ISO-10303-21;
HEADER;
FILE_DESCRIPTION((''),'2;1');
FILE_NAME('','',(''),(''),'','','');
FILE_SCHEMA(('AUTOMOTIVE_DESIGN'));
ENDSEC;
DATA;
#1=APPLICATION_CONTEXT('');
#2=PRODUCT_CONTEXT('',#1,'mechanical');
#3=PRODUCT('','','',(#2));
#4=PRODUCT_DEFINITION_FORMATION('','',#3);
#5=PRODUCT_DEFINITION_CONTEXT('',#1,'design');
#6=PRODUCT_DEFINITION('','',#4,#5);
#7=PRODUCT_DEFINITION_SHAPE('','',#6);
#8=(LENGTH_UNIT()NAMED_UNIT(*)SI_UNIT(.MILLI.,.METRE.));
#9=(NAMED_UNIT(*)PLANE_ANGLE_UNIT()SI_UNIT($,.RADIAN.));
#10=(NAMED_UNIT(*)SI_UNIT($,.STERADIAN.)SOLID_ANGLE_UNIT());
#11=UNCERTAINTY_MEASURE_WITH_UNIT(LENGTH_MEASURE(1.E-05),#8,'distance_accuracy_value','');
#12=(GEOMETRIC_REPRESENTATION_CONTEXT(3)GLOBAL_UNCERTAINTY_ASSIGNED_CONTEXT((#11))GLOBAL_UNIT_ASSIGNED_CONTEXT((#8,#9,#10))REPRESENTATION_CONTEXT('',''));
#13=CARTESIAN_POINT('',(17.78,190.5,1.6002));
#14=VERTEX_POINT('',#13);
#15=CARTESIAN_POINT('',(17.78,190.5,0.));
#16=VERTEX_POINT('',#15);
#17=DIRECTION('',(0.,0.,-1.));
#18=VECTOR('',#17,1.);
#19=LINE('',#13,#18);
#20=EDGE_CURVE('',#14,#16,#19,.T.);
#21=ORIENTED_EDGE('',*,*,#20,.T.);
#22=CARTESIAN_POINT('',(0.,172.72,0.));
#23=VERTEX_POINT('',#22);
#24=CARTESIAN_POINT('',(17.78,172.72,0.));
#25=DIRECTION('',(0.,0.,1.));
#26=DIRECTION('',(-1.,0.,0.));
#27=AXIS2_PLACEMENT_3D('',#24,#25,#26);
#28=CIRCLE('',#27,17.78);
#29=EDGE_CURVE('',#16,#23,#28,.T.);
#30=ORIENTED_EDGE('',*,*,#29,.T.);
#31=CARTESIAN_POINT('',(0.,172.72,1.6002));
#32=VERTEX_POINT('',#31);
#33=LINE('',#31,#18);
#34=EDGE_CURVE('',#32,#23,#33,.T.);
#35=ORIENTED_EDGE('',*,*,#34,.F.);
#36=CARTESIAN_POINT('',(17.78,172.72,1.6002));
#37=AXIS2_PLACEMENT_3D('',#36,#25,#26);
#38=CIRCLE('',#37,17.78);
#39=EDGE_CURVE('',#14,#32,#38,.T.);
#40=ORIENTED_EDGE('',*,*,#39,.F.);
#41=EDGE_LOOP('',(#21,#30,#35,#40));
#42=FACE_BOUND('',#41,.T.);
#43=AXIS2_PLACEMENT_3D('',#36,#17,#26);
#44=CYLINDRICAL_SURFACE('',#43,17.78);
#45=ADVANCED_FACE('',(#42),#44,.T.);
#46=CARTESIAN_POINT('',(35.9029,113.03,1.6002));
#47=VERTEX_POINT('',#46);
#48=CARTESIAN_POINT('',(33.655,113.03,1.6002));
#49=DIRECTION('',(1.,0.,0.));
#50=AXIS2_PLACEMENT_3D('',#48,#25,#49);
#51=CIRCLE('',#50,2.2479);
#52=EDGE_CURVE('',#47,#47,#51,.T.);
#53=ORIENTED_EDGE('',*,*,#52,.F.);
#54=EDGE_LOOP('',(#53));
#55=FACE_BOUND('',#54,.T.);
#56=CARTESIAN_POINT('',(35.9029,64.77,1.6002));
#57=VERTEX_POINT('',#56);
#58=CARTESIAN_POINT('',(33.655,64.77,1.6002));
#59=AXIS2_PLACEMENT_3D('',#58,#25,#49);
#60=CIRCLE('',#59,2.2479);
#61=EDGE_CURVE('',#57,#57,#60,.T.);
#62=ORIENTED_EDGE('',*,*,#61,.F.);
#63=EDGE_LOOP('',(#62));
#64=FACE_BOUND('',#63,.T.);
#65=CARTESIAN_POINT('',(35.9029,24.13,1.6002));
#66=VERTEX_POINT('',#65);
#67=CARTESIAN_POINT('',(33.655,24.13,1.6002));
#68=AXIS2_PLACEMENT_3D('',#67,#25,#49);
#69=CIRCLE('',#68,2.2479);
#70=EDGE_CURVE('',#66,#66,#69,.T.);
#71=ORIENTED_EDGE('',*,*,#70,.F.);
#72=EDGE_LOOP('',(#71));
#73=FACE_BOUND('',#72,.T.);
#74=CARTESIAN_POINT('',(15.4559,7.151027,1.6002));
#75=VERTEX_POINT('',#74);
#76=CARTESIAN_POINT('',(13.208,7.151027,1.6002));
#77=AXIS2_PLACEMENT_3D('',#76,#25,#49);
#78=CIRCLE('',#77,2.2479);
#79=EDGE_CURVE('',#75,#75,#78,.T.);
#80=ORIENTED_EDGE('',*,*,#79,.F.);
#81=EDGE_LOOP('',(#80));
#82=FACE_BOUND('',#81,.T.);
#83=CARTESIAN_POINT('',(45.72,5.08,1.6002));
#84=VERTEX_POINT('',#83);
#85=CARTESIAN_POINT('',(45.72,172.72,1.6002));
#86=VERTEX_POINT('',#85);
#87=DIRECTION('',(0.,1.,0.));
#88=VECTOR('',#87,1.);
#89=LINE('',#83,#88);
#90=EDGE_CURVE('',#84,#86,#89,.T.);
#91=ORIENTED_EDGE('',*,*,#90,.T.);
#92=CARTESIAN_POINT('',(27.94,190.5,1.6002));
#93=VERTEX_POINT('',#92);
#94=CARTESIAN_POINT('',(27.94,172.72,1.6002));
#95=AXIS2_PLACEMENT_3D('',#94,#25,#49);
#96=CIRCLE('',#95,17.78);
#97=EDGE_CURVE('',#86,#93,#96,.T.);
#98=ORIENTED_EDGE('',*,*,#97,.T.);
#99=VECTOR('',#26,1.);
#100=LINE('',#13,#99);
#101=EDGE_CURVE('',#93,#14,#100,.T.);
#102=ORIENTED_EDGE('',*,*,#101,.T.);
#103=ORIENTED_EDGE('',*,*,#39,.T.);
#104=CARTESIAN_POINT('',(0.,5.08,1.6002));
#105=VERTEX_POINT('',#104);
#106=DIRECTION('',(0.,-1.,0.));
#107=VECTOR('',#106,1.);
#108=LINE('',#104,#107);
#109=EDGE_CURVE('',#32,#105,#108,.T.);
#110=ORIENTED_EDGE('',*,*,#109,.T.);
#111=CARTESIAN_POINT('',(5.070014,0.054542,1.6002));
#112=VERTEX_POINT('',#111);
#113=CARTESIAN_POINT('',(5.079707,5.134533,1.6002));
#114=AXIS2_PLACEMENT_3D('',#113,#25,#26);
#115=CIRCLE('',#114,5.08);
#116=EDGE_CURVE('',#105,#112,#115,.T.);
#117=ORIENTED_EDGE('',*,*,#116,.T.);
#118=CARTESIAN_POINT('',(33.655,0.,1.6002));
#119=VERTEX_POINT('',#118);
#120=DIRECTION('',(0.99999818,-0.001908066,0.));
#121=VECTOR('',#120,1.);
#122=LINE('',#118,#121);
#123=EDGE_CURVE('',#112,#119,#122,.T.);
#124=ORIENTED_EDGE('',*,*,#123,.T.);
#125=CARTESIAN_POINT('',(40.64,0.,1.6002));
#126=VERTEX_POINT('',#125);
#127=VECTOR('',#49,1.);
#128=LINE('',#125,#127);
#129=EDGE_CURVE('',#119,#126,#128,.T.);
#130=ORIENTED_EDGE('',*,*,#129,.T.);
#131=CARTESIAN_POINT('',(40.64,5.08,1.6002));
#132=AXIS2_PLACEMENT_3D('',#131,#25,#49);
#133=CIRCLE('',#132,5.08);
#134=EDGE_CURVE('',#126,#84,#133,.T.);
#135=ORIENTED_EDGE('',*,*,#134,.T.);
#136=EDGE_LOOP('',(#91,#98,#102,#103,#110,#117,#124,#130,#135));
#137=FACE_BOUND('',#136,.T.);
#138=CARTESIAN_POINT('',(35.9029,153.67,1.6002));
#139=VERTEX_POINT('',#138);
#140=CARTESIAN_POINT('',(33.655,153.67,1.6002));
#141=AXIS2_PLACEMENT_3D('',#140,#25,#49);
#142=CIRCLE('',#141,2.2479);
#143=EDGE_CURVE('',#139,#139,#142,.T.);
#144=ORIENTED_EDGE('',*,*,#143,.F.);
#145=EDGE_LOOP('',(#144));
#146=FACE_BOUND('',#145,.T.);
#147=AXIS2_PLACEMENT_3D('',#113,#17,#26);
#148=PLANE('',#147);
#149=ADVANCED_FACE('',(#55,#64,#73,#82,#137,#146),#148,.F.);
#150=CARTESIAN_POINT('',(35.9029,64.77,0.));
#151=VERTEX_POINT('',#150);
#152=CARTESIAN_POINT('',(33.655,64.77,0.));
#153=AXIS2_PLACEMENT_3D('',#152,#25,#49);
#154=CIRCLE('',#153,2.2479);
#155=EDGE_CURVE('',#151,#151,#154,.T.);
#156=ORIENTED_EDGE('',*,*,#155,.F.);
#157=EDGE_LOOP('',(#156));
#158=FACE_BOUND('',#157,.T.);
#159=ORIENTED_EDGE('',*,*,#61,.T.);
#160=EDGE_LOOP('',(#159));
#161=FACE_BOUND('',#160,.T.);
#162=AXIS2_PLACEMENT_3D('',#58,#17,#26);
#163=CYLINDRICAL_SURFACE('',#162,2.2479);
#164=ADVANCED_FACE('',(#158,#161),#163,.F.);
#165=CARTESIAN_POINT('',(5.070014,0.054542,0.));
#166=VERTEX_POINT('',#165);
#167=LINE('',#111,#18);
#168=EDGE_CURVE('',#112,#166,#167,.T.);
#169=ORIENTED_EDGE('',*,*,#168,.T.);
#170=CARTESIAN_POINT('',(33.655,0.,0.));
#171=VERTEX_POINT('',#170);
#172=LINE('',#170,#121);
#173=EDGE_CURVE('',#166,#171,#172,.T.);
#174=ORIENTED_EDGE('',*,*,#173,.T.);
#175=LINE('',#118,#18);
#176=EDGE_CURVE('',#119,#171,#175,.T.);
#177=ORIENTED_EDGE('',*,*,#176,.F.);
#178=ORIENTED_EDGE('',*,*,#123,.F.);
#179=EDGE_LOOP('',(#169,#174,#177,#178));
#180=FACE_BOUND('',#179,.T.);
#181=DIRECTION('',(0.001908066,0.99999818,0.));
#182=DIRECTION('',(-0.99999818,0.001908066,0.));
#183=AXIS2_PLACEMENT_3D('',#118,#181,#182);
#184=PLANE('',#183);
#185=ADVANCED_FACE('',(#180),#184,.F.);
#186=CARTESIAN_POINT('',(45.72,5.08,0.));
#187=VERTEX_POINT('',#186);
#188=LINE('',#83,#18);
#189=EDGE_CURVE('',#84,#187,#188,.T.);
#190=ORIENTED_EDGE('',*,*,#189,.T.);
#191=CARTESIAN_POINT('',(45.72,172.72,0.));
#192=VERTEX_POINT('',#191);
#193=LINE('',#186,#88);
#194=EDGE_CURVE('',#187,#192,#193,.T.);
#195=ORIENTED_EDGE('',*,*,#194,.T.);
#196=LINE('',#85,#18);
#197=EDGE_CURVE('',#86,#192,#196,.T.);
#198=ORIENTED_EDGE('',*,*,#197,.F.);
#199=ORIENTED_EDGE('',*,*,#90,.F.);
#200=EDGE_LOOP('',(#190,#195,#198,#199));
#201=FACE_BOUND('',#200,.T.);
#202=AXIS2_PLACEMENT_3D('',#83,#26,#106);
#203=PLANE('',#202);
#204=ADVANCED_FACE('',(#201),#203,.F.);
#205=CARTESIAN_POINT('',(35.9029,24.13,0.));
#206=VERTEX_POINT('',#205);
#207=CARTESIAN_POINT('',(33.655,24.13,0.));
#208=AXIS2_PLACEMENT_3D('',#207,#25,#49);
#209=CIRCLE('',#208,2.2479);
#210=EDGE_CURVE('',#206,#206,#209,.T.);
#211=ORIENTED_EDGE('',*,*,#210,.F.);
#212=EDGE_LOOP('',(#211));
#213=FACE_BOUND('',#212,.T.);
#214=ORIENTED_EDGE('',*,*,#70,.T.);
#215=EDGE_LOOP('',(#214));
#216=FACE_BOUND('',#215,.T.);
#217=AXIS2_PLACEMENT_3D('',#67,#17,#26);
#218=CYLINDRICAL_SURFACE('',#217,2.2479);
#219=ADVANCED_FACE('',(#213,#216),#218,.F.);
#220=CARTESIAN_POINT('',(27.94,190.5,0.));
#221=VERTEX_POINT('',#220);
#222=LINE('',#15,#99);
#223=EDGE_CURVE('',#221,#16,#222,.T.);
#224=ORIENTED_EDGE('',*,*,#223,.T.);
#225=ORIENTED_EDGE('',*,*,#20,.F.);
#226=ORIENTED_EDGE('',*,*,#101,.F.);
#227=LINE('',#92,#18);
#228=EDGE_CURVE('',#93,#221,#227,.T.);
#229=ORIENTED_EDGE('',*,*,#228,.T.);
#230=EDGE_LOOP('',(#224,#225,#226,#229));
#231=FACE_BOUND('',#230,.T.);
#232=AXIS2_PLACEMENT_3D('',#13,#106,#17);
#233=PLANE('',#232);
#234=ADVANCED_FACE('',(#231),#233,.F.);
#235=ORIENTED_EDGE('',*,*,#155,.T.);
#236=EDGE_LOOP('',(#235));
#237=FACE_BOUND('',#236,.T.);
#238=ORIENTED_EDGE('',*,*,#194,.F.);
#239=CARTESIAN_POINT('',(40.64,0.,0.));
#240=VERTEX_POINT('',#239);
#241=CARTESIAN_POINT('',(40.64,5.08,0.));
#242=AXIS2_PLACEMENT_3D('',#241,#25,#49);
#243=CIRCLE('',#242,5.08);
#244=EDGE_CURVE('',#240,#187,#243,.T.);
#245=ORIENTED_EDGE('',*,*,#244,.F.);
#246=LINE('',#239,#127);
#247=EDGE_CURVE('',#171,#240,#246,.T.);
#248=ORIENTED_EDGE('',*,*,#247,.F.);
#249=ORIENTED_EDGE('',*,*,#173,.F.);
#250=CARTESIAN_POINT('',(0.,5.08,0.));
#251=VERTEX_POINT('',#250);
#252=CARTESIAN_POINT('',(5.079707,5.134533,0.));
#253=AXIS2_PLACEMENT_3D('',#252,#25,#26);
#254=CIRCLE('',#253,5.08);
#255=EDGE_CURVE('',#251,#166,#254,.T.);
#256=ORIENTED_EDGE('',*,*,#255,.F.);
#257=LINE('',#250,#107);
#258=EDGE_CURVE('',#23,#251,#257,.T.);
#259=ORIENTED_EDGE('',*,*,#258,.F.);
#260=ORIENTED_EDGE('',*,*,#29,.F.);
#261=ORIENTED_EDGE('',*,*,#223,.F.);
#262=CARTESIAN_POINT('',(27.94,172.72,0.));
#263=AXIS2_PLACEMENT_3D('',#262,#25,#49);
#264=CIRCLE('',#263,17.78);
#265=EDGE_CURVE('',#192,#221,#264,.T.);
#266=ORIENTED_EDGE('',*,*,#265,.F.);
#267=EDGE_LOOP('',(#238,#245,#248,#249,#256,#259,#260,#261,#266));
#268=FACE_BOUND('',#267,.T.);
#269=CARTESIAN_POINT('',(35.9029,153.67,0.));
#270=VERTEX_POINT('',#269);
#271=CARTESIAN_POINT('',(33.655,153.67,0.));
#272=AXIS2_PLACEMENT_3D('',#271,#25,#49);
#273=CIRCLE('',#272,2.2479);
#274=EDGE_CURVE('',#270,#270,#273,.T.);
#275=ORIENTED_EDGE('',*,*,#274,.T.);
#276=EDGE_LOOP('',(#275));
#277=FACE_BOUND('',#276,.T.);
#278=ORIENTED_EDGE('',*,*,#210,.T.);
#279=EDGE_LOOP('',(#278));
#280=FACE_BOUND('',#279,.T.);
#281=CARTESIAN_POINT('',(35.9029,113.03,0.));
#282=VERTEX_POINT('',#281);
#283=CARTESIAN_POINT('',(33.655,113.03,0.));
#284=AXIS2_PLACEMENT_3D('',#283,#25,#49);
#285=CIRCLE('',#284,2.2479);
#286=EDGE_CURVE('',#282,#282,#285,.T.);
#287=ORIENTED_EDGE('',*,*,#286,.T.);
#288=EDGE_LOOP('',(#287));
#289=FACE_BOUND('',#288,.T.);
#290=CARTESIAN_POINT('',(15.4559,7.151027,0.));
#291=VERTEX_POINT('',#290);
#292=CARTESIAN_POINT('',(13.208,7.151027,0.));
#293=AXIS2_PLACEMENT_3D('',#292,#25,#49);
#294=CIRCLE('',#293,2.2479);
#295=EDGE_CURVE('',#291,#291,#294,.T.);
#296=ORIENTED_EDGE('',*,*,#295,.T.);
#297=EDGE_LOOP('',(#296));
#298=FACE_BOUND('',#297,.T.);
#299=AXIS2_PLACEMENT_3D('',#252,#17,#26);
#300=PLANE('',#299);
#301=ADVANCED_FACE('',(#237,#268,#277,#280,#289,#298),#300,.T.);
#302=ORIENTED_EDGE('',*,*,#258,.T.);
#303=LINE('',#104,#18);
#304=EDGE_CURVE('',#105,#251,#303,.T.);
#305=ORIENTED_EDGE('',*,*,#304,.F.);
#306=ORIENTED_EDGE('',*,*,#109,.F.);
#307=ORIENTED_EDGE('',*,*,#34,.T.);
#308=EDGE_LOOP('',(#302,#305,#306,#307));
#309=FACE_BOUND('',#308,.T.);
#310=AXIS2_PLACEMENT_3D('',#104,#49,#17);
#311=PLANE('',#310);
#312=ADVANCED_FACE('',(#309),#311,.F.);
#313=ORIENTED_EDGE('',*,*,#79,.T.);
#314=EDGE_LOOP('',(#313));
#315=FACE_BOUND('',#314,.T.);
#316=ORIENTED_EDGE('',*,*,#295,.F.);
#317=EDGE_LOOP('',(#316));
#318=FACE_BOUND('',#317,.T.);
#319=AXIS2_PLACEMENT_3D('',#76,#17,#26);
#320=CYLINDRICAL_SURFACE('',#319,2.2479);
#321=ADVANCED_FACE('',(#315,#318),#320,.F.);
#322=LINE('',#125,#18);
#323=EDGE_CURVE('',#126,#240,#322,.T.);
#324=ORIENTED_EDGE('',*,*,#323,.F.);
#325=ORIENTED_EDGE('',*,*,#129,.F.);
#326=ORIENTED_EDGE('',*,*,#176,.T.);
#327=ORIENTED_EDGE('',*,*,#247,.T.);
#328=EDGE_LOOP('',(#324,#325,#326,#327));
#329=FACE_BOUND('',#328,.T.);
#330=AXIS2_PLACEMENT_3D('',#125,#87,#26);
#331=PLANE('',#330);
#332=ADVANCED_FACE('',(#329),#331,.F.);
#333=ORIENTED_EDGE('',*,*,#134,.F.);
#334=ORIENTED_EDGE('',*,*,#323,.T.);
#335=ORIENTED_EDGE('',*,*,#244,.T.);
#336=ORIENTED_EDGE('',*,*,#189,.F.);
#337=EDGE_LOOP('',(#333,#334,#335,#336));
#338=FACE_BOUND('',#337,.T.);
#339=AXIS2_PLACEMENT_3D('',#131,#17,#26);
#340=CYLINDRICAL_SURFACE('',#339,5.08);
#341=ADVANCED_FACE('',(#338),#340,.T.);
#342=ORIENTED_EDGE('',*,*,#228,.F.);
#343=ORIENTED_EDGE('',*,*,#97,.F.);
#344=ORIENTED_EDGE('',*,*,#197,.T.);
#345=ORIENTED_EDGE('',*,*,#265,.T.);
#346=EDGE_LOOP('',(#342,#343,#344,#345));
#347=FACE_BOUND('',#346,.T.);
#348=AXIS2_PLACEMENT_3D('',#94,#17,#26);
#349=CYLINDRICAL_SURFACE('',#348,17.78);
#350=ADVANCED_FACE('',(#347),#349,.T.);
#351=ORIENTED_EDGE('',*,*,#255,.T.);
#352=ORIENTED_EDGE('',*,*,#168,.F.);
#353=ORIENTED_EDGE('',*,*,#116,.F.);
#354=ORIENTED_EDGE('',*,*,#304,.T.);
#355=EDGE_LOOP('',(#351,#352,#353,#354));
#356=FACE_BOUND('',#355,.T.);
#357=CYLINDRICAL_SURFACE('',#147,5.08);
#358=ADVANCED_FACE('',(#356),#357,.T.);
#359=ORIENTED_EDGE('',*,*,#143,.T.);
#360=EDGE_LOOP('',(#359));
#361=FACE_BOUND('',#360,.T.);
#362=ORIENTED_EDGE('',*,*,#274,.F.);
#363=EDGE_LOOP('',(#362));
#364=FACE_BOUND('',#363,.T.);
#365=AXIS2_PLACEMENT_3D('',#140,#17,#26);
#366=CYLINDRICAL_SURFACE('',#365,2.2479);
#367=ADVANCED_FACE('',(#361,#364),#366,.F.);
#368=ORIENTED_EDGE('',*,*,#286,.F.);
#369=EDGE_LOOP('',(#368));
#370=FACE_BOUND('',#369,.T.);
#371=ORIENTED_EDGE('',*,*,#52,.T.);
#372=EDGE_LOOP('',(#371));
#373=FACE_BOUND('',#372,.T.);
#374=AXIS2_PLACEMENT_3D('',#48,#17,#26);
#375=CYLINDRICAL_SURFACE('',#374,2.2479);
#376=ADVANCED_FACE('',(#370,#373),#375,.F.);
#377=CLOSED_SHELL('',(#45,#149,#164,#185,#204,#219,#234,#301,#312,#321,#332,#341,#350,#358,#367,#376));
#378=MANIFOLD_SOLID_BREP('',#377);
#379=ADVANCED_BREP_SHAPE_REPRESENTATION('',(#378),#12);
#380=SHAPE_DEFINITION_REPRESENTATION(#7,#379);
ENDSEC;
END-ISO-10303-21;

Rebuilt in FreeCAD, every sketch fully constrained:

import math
import FreeCAD as App
import Part
import Sketcher
from FreeCAD import Vector
Q = App.Units.Quantity

doc = App.newDocument("Part")
body = doc.addObject("PartDesign::Body", "Body")

# Sketch on XY plane
sketch1 = body.newObject("Sketcher::SketchObject", "Sketch")
sketch1.AttachmentSupport = (doc.getObject("XY_Plane"), [""])
sketch1.MapMode = "FlatFace"
sketch1.addGeometry([
    Part.LineSegment(Vector(45.72, 5.08, 0), Vector(45.72, 172.72, 0)),  # 0
    Part.ArcOfCircle(Part.Circle(Vector(27.94, 172.72, 0), Vector(0, 0, 1), 17.78), math.radians(0), math.radians(90)),  # 1
    Part.LineSegment(Vector(27.94, 190.5, 0), Vector(17.78, 190.5, 0)),  # 2
    Part.ArcOfCircle(Part.Circle(Vector(17.78, 172.72, 0), Vector(0, 0, 1), 17.78), math.radians(90), math.radians(180)),  # 3
    Part.LineSegment(Vector(0, 172.72, 0), Vector(0, 5.08, 0)),  # 4
    Part.ArcOfCircle(Part.Circle(Vector(5.079707, 5.134533, 0), Vector(0, 0, 1), 5.08), math.radians(-179.384928), math.radians(-90.109324)),  # 5
    Part.LineSegment(Vector(5.070014, 0.054542, 0), Vector(33.655, 0, 0)),  # 6
    Part.LineSegment(Vector(33.655, 0, 0), Vector(40.64, 0, 0)),  # 7
    Part.ArcOfCircle(Part.Circle(Vector(40.64, 5.08, 0), Vector(0, 0, 1), 5.08), math.radians(-90), math.radians(0)),  # 8
    Part.Circle(Vector(13.208, 7.151027, 0), Vector(0, 0, 1), 2.2479),  # 9
    Part.Circle(Vector(33.655, 24.13, 0), Vector(0, 0, 1), 2.2479),  # 10
    Part.Circle(Vector(33.655, 64.77, 0), Vector(0, 0, 1), 2.2479),  # 11
    Part.Circle(Vector(33.655, 113.03, 0), Vector(0, 0, 1), 2.2479),  # 12
    Part.Circle(Vector(33.655, 153.67, 0), Vector(0, 0, 1), 2.2479),  # 13
], False)
sketch1.addConstraint([
    Sketcher.Constraint("Tangent", 0, 2, 1, 1),
    Sketcher.Constraint("Tangent", 1, 2, 2, 1),
    Sketcher.Constraint("Tangent", 2, 2, 3, 1),
    Sketcher.Constraint("Tangent", 3, 2, 4, 1),
    Sketcher.Constraint("Coincident", 4, 2, 5, 1),
    Sketcher.Constraint("Tangent", 5, 2, 6, 1),
    Sketcher.Constraint("Coincident", 6, 2, 7, 1),
    Sketcher.Constraint("Tangent", 7, 2, 8, 1),
    Sketcher.Constraint("Tangent", 8, 2, 0, 1),
    Sketcher.Constraint("Vertical", 0),
    Sketcher.Constraint("Horizontal", 2),
    Sketcher.Constraint("Vertical", 4),
    Sketcher.Constraint("Horizontal", 7),
    Sketcher.Constraint("Equal", 1, 3),
    Sketcher.Constraint("Equal", 5, 8),
    Sketcher.Constraint("Equal", 9, 10),
    Sketcher.Constraint("Equal", 10, 11),
    Sketcher.Constraint("Equal", 11, 12),
    Sketcher.Constraint("Equal", 12, 13),
    Sketcher.Constraint("PointOnObject", 3, 2, -2),
    Sketcher.Constraint("PointOnObject", 6, 2, -1),
    Sketcher.Constraint("Horizontal", 8, 3, 4, 2),
    Sketcher.Constraint("Vertical", 10, 3, 11, 3),
    Sketcher.Constraint("Vertical", 11, 3, 12, 3),
    Sketcher.Constraint("Vertical", 12, 3, 13, 3),
    Sketcher.Constraint("Vertical", 13, 3, 6, 2),
    Sketcher.Constraint("Radius", 1, Q("0.7 in")),
    Sketcher.Constraint("Radius", 5, Q("0.2 in")),
    Sketcher.Constraint("Diameter", 9, Q("0.177 in")),
    Sketcher.Constraint("DistanceX", 2, 2, 2, 1, Q("0.4 in")),
    Sketcher.Constraint("DistanceY", 0, 1, 0, 2, Q("6.6 in")),
    Sketcher.Constraint("DistanceY", 10, 3, 11, 3, Q("1.6 in")),
    Sketcher.Constraint("DistanceY", 11, 3, 12, 3, Q("1.9 in")),
    Sketcher.Constraint("DistanceY", 12, 3, 13, 3, Q("1.6 in")),
    Sketcher.Constraint("DistanceX", 7, 1, 7, 2, Q("0.275 in")),
    Sketcher.Constraint("DistanceX", -1, 1, 9, 3, Q("0.52 in")),
    Sketcher.Constraint("DistanceY", -1, 1, 10, 3, Q("0.95 in")),
    Sketcher.Constraint("Distance", 6, 28.585038),
    Sketcher.Constraint("DistanceY", -1, 1, 9, 3, 7.151027),
])
pad1 = body.newObject("PartDesign::Pad", "Pad")
pad1.Profile = sketch1
pad1.Length = Q("0.063 in")

doc.recompute()
